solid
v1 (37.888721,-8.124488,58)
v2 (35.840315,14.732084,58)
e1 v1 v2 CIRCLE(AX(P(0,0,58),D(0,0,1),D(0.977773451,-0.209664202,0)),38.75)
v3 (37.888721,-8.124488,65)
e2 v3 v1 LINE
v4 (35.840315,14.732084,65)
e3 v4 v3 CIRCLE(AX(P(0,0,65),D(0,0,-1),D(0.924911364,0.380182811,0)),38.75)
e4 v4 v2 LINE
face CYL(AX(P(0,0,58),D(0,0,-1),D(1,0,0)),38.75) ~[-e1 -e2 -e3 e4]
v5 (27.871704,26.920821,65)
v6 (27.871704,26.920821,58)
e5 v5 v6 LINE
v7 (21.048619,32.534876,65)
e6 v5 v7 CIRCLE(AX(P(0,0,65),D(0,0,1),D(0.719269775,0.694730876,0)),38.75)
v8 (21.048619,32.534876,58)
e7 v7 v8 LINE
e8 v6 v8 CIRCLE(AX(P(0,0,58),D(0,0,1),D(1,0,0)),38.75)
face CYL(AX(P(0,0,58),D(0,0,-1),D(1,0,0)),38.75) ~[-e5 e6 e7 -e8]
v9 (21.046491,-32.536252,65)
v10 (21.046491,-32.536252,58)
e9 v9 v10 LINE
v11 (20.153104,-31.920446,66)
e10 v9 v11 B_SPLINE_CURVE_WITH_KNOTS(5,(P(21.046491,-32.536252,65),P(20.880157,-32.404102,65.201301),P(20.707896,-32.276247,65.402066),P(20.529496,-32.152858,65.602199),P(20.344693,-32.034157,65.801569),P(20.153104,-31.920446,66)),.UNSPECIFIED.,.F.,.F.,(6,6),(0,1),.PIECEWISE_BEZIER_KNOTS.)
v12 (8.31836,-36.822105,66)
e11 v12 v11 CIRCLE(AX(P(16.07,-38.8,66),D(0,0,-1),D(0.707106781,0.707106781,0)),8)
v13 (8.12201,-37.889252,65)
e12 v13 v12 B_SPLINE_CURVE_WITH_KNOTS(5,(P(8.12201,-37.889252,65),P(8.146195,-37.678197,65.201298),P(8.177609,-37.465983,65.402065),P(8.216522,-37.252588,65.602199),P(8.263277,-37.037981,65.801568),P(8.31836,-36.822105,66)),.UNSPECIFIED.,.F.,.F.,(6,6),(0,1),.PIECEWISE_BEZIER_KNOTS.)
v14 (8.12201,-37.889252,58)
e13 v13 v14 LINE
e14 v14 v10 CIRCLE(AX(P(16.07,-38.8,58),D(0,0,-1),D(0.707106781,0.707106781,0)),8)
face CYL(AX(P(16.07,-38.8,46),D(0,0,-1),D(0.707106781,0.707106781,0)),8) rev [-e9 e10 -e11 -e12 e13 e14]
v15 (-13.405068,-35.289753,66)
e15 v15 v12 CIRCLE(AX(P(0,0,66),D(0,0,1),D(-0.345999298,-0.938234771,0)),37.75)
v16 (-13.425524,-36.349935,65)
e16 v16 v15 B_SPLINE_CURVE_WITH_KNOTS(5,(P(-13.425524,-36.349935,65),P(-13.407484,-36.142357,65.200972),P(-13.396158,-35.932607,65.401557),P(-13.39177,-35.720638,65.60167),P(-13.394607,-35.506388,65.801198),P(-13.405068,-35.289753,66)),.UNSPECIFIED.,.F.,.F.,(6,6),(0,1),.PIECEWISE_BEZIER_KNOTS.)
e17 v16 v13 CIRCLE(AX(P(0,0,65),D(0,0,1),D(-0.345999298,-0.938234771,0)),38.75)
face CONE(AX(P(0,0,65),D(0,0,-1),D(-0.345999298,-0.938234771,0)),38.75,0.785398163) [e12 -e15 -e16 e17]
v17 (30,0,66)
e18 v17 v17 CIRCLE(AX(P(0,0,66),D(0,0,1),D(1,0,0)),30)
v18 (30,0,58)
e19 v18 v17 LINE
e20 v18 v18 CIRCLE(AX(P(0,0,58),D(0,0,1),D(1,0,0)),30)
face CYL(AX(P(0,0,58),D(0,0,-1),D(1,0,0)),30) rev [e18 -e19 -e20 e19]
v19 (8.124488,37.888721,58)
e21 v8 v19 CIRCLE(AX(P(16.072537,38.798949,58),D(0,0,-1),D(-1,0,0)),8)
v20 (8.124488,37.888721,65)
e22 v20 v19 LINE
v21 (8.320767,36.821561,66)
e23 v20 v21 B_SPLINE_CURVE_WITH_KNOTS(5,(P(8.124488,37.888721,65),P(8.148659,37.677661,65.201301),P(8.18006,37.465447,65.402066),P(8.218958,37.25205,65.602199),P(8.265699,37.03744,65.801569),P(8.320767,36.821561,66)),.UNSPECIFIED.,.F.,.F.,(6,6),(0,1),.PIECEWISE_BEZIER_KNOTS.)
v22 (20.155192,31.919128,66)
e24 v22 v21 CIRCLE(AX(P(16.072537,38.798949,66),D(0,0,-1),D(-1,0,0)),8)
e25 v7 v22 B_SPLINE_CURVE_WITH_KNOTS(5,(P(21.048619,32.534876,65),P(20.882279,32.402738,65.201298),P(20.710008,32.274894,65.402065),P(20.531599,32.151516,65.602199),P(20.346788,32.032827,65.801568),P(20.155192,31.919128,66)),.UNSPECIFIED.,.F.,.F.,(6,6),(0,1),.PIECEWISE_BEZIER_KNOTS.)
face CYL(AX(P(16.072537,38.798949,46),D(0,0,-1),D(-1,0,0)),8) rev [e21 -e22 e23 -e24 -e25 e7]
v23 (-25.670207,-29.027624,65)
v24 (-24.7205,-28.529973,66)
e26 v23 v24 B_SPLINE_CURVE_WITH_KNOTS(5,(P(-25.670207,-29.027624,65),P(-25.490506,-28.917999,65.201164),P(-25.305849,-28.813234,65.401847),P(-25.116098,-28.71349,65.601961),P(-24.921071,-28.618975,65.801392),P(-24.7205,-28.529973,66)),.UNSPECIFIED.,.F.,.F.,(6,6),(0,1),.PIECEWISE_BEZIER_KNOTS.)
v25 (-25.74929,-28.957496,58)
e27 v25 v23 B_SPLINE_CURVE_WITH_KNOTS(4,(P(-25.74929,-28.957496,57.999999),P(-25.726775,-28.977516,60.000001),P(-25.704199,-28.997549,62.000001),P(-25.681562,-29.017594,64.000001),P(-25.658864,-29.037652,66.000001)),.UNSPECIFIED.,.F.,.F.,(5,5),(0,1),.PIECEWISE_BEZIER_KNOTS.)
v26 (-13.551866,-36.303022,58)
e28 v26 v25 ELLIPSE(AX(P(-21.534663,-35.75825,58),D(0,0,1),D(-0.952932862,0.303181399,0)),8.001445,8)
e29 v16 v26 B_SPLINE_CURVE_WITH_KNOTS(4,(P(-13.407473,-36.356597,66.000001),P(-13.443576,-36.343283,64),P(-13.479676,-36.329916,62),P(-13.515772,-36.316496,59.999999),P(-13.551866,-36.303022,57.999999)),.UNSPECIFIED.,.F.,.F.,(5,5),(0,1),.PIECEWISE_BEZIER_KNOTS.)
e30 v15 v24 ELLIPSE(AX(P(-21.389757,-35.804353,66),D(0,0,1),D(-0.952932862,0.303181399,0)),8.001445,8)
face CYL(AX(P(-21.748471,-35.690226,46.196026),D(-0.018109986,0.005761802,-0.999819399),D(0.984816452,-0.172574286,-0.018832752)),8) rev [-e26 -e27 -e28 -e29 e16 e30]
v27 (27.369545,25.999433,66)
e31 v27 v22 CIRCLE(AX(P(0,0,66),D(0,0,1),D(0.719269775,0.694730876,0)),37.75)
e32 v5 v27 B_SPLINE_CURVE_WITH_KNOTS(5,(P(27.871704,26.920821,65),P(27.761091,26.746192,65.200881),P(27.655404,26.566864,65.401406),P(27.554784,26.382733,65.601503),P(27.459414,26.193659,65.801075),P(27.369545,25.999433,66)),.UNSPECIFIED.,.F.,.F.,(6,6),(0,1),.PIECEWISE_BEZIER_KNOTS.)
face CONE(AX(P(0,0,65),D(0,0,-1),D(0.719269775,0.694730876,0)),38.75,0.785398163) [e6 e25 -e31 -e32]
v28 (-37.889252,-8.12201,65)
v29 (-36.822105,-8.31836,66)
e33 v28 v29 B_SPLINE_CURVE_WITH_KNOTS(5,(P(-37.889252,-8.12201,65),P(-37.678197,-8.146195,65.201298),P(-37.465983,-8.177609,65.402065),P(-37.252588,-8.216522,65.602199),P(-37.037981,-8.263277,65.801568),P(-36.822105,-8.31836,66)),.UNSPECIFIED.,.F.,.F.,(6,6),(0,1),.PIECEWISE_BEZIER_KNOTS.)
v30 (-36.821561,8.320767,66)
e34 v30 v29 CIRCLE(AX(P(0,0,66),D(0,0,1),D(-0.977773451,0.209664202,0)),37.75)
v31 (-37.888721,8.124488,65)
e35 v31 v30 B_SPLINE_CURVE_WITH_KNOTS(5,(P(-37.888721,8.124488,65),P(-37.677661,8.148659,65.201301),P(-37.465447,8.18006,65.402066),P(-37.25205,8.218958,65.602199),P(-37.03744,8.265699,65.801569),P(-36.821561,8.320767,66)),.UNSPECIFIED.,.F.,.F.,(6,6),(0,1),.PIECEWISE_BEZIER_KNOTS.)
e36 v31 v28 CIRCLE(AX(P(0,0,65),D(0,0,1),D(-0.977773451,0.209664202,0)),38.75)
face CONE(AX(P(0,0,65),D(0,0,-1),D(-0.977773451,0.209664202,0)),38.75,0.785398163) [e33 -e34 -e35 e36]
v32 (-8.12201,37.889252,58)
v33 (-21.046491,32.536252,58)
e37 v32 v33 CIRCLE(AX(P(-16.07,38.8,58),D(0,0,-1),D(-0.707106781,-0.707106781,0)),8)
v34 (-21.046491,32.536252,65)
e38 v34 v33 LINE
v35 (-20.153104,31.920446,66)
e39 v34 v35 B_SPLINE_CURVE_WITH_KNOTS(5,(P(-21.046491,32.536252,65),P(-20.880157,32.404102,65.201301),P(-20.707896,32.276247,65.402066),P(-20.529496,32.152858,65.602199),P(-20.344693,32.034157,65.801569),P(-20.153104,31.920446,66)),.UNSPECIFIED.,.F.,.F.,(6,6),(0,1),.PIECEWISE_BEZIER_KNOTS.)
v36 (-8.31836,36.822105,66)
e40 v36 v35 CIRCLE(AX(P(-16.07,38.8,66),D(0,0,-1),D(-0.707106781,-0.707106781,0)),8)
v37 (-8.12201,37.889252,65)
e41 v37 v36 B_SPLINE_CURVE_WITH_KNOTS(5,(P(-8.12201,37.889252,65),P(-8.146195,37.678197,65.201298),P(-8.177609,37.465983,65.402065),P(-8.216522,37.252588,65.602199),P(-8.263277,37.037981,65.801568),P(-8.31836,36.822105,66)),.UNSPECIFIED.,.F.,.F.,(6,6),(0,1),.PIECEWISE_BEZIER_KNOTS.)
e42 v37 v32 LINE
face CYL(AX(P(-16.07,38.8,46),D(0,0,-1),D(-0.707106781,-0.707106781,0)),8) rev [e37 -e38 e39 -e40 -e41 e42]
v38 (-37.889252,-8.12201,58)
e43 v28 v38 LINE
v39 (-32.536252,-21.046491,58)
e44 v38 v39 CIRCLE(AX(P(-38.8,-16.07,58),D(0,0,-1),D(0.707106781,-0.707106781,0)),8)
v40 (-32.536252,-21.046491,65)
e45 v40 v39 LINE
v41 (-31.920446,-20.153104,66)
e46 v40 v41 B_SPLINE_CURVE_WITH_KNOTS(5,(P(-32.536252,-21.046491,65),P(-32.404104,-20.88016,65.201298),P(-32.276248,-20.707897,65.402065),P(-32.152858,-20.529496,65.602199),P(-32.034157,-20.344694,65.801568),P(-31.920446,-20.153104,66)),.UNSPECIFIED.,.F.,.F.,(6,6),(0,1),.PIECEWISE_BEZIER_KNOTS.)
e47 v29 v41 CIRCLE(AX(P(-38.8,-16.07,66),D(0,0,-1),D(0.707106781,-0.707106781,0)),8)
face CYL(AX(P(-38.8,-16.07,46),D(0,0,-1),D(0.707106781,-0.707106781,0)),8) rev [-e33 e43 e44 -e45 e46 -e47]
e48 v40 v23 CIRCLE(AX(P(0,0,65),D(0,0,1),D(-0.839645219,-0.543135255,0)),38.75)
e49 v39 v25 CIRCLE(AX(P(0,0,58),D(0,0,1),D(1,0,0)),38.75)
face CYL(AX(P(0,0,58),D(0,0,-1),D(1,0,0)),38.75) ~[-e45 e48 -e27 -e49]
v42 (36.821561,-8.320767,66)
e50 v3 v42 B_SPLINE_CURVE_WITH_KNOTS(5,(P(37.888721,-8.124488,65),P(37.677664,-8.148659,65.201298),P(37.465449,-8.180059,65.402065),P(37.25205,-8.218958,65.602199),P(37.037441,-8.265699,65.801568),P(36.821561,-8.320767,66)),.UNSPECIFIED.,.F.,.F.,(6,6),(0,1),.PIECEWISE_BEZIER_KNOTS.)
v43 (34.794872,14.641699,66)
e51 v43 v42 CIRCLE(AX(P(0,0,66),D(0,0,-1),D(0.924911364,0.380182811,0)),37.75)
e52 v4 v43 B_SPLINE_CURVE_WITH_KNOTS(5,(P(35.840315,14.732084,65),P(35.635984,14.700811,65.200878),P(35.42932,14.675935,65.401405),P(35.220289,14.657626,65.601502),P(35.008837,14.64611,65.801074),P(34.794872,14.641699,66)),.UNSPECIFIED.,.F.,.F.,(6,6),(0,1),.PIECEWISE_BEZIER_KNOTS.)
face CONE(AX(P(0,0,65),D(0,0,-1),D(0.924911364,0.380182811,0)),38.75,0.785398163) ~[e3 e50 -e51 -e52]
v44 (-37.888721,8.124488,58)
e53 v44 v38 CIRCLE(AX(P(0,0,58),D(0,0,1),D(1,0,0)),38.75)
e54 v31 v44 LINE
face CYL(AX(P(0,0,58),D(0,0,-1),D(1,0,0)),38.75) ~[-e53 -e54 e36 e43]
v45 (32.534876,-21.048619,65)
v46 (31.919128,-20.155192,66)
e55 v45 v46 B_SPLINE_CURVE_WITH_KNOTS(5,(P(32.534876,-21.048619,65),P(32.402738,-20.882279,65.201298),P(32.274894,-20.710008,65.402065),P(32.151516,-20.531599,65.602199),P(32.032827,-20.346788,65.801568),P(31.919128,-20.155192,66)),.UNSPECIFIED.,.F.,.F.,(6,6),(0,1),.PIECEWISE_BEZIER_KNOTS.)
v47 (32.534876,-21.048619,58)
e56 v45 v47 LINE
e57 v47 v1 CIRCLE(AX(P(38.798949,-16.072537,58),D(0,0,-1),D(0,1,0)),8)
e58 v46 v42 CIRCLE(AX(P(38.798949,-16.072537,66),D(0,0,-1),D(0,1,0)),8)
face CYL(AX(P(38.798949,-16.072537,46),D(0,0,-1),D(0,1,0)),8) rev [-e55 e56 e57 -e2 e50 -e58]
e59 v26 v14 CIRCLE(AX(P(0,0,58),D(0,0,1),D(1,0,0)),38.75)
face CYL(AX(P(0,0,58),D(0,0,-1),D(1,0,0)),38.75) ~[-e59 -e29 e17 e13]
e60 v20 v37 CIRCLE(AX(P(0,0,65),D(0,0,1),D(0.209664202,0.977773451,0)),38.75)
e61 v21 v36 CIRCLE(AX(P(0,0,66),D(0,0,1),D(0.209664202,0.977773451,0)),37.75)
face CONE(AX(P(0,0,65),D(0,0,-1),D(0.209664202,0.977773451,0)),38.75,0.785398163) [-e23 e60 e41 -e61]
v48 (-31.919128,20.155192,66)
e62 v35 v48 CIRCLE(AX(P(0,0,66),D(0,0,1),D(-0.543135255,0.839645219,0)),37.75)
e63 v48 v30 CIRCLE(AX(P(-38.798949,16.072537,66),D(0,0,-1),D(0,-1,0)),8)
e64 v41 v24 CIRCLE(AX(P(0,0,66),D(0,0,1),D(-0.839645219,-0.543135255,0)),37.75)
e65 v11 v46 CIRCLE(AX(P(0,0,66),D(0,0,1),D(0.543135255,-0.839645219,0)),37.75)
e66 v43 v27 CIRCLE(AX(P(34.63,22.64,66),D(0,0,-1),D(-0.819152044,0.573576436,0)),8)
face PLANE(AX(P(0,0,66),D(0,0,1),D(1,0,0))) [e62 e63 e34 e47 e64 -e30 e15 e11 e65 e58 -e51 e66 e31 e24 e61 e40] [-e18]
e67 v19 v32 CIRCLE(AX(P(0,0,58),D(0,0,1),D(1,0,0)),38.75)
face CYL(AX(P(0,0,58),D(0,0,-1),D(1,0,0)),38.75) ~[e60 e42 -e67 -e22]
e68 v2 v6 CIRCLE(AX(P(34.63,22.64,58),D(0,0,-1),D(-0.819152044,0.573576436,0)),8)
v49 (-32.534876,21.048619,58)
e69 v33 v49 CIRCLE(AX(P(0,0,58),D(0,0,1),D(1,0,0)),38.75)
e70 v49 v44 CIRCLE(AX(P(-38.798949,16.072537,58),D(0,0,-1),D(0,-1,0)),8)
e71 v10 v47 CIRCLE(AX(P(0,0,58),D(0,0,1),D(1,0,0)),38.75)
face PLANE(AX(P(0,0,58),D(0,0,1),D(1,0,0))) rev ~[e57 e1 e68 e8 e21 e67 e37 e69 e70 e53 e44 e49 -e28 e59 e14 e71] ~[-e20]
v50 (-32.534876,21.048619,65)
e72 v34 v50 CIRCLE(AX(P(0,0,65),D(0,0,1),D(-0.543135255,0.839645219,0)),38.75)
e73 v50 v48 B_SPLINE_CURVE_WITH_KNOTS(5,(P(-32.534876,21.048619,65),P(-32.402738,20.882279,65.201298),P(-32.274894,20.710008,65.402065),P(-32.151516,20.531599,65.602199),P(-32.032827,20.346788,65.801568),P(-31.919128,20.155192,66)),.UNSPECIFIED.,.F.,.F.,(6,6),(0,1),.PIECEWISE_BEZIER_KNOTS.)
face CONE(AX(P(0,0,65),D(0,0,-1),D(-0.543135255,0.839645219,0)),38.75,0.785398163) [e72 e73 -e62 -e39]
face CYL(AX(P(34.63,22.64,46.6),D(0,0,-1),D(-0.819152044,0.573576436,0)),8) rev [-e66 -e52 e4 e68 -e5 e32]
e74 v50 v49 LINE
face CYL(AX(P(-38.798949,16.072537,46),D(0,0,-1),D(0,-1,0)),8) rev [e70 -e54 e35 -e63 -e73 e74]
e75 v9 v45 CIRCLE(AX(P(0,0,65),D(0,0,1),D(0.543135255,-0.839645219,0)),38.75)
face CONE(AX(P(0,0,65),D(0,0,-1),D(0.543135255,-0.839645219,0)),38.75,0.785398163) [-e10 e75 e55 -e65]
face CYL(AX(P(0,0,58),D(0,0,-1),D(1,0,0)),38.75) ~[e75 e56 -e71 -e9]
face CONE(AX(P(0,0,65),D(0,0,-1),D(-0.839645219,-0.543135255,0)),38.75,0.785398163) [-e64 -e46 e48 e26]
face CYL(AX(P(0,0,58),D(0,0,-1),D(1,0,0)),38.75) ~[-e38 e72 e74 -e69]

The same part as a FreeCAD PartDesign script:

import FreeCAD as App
import Part
import Sketcher
from FreeCAD import Vector
Q = App.Units.Quantity


def edges_at(feature, points):
    """Names of the edges that pass closest to the given points."""
    edges = feature.Shape.Edges
    near = lambda p: min(range(len(edges)), key=lambda i: edges[i].distToShape(Part.Vertex(*p))[0])
    return sorted({f"Edge{near(p) + 1}" for p in points})

doc = App.newDocument("Part")
body = doc.addObject("PartDesign::Body", "Body")

sketch1 = body.newObject("Sketcher::SketchObject", "Sketch")
sketch1.AttachmentSupport = (doc.getObject("XY_Plane"), [""])
sketch1.MapMode = "FlatFace"
sketch1.AttachmentOffset = App.Placement(Vector(0, 0, 43), App.Rotation())
sketch1.addGeometry(Part.Circle(Vector(-39, 16, 0), Vector(0, 0, 1), 8), False)
sketch1.addConstraint([
    Sketcher.Constraint("Diameter", 0, Q("16 mm")),
    Sketcher.Constraint("DistanceX", 0, 3, -1, 1, Q("38.798949 mm")),
    Sketcher.Constraint("DistanceY", -1, 1, 0, 3, Q("16.072537 mm")),
])
pad1 = body.newObject("PartDesign::Pad", "Pad")
pad1.Profile = sketch1
pad1.Length = 25
body2 = doc.addObject("PartDesign::Body", "Body001")

sketch2 = body2.newObject("Sketcher::SketchObject", "Sketch001")
sketch2.AttachmentSupport = (doc.getObject("XY_Plane001"), [""])
sketch2.MapMode = "FlatFace"
sketch2.addGeometry(Part.Circle(Vector(0, 0, 0), Vector(0, 0, 1), 8), False)
sketch2.addConstraint([
    Sketcher.Constraint("Coincident", 0, 3, -1, 1),
    Sketcher.Constraint("Diameter", 0, Q("16 mm")),
])
pad2 = body2.newObject("PartDesign::Pad", "Pad001")
pad2.Profile = sketch2
pad2.Length = 25
body3 = doc.addObject("PartDesign::Body", "Body002")
doc.recompute()

body2.Placement = App.Placement(Vector(-16.07, 38.8, 43), App.Rotation(Vector(0, 0, 1), 225))
boolean = body3.newObject("PartDesign::Boolean", "Boolean")
boolean.Type = "Fuse"
boolean.addObjects([body2])
body4 = doc.addObject("PartDesign::Body", "Body003")

sketch3 = body4.newObject("Sketcher::SketchObject", "Sketch002")
sketch3.AttachmentSupport = (doc.getObject("XY_Plane003"), [""])
sketch3.MapMode = "FlatFace"
sketch3.AttachmentOffset = App.Placement(Vector(0, 0, 43), App.Rotation())
sketch3.addGeometry(Part.Circle(Vector(16, 39, 0), Vector(0, 0, 1), 8), False)
sketch3.addConstraint([
    Sketcher.Constraint("Diameter", 0, Q("16 mm")),
    Sketcher.Constraint("DistanceY", -1, 1, 0, 3, Q("38.798949 mm")),
    Sketcher.Constraint("DistanceX", -1, 1, 0, 3, Q("16.072537 mm")),
])
pad3 = body4.newObject("PartDesign::Pad", "Pad002")
pad3.Profile = sketch3
pad3.Length = 25
body5 = doc.addObject("PartDesign::Body", "Body004")

sketch4 = body5.newObject("Sketcher::SketchObject", "Sketch003")
sketch4.AttachmentSupport = (doc.getObject("XY_Plane004"), [""])
sketch4.MapMode = "FlatFace"
sketch4.addGeometry(Part.Circle(Vector(0, 0, 0), Vector(0, 0, 1), 8), False)
sketch4.addConstraint([
    Sketcher.Constraint("Coincident", 0, 3, -1, 1),
    Sketcher.Constraint("Diameter", 0, Q("16 mm")),
])
pad4 = body5.newObject("PartDesign::Pad", "Pad003")
pad4.Profile = sketch4
pad4.Length = 25
body6 = doc.addObject("PartDesign::Body", "Body005")
doc.recompute()

body5.Placement = App.Placement(Vector(34.63, 22.64, 43.6), App.Rotation(Vector(0, 0, 1), 145))
boolean2 = body6.newObject("PartDesign::Boolean", "Boolean001")
boolean2.Type = "Fuse"
boolean2.addObjects([body5])
body7 = doc.addObject("PartDesign::Body", "Body006")

sketch5 = body7.newObject("Sketcher::SketchObject", "Sketch004")
sketch5.AttachmentSupport = (doc.getObject("XY_Plane006"), [""])
sketch5.MapMode = "FlatFace"
sketch5.AttachmentOffset = App.Placement(Vector(0, 0, 43), App.Rotation())
sketch5.addGeometry(Part.Circle(Vector(39, -16, 0), Vector(0, 0, 1), 8), False)
sketch5.addConstraint([
    Sketcher.Constraint("Diameter", 0, Q("16 mm")),
    Sketcher.Constraint("DistanceX", -1, 1, 0, 3, Q("38.798949 mm")),
    Sketcher.Constraint("DistanceY", 0, 3, -1, 1, Q("16.072537 mm")),
])
pad5 = body7.newObject("PartDesign::Pad", "Pad004")
pad5.Profile = sketch5
pad5.Length = 25
body8 = doc.addObject("PartDesign::Body", "Body007")

sketch6 = body8.newObject("Sketcher::SketchObject", "Sketch005")
sketch6.AttachmentSupport = (doc.getObject("XY_Plane007"), [""])
sketch6.MapMode = "FlatFace"
sketch6.addGeometry(Part.Circle(Vector(0, 0, 0), Vector(0, 0, 1), 8), False)
sketch6.addConstraint([
    Sketcher.Constraint("Coincident", 0, 3, -1, 1),
    Sketcher.Constraint("Diameter", 0, Q("16 mm")),
])
pad6 = body8.newObject("PartDesign::Pad", "Pad005")
pad6.Profile = sketch6
pad6.Length = 25
body9 = doc.addObject("PartDesign::Body", "Body008")
doc.recompute()

body8.Placement = App.Placement(Vector(16.07, -38.8, 43), App.Rotation(Vector(0, 0, 1), 45))
boolean3 = body9.newObject("PartDesign::Boolean", "Boolean002")
boolean3.Type = "Fuse"
boolean3.addObjects([body8])
body10 = doc.addObject("PartDesign::Body", "Body009")

sketch7 = body10.newObject("Sketcher::SketchObject", "Sketch006")
sketch7.AttachmentSupport = (doc.getObject("XY_Plane009"), [""])
sketch7.MapMode = "FlatFace"
sketch7.addGeometry(Part.Circle(Vector(0, 0, 0), Vector(0, 0, 1), 8), False)
sketch7.addConstraint([
    Sketcher.Constraint("Coincident", 0, 3, -1, 1),
    Sketcher.Constraint("Diameter", 0, Q("16 mm")),
])
pad7 = body10.newObject("PartDesign::Pad", "Pad006")
pad7.Profile = sketch7
pad7.Length = 25
body11 = doc.addObject("PartDesign::Body", "Body010")
doc.recompute()

body10.Placement = App.Placement(Vector(0, 0, 0), App.Rotation(Vector(1, 0, 0), 0.146073))
boolean4 = body11.newObject("PartDesign::Boolean", "Boolean003")
boolean4.Type = "Fuse"
boolean4.addObjects([body10])
body12 = doc.addObject("PartDesign::Body", "Body011")
doc.recompute()

body11.Placement = App.Placement(Vector(0, 0, 0), App.Rotation(Vector(0, 1, 0), 1.079101))
boolean5 = body12.newObject("PartDesign::Boolean", "Boolean004")
boolean5.Type = "Fuse"
boolean5.addObjects([body11])
body13 = doc.addObject("PartDesign::Body", "Body012")
doc.recompute()

body12.Placement = App.Placement(Vector(-21.748471, -35.690226, 43.196026), App.Rotation(Vector(0, 0, 1), 350.060692))
boolean6 = body13.newObject("PartDesign::Boolean", "Boolean005")
boolean6.Type = "Fuse"
boolean6.addObjects([body12])
body14 = doc.addObject("PartDesign::Body", "Body013")

sketch8 = body14.newObject("Sketcher::SketchObject", "Sketch007")
sketch8.AttachmentSupport = (doc.getObject("XY_Plane013"), [""])
sketch8.MapMode = "FlatFace"
sketch8.addGeometry(Part.Circle(Vector(0, 0, 0), Vector(0, 0, 1), 8), False)
sketch8.addConstraint([
    Sketcher.Constraint("Coincident", 0, 3, -1, 1),
    Sketcher.Constraint("Diameter", 0, Q("16 mm")),
])
pad8 = body14.newObject("PartDesign::Pad", "Pad007")
pad8.Profile = sketch8
pad8.Length = 25
body15 = doc.addObject("PartDesign::Body", "Body014")
body15.AllowCompound = True
doc.recompute()

body14.Placement = App.Placement(Vector(-38.8, -16.07, 43), App.Rotation(Vector(0, 0, -1), 45))
boolean7 = body15.newObject("PartDesign::Boolean", "Boolean006")
boolean7.Type = "Fuse"
boolean7.addObjects([body14])
doc.recompute()

boolean8 = body15.newObject("PartDesign::Boolean", "Boolean007")
boolean8.Type = "Fuse"
boolean8.addObjects([body])
doc.recompute()

boolean9 = body15.newObject("PartDesign::Boolean", "Boolean008")
boolean9.Type = "Fuse"
boolean9.addObjects([body3])
doc.recompute()

boolean10 = body15.newObject("PartDesign::Boolean", "Boolean009")
boolean10.Type = "Fuse"
boolean10.addObjects([body4])
doc.recompute()

boolean11 = body15.newObject("PartDesign::Boolean", "Boolean010")
boolean11.Type = "Fuse"
boolean11.addObjects([body6])
doc.recompute()

boolean12 = body15.newObject("PartDesign::Boolean", "Boolean011")
boolean12.Type = "Fuse"
boolean12.addObjects([body7])
doc.recompute()

boolean13 = body15.newObject("PartDesign::Boolean", "Boolean012")
boolean13.Type = "Fuse"
boolean13.addObjects([body9])
doc.recompute()

boolean14 = body15.newObject("PartDesign::Boolean", "Boolean013")
boolean14.Type = "Fuse"
boolean14.addObjects([body13])
body16 = doc.addObject("PartDesign::Body", "Body015")
body16.AllowCompound = True
doc.recompute()

body15.Placement = App.Placement(Vector(0, 0, 3), App.Rotation(Vector(0, 0, 1), 0))
boolean15 = body16.newObject("PartDesign::Boolean", "Boolean014")
boolean15.Type = "Fuse"
boolean15.addObjects([body15])
body17 = doc.addObject("PartDesign::Body", "Body016")

sketch9 = body17.newObject("Sketcher::SketchObject", "Sketch008")
sketch9.AttachmentSupport = (doc.getObject("XY_Plane016"), [""])
sketch9.MapMode = "FlatFace"
sketch9.AttachmentOffset = App.Placement(Vector(0, 0, 58), App.Rotation())
sketch9.addGeometry([
    Part.Circle(Vector(0, 0, 0), Vector(0, 0, 1), 39),
    Part.Circle(Vector(0, 0, 0), Vector(0, 0, 1), 30),
], False)
sketch9.addConstraint([
    Sketcher.Constraint("Coincident", 0, 3, -1, 1),
    Sketcher.Constraint("Coincident", 1, 3, -1, 1),
    Sketcher.Constraint("Diameter", 1, Q("60 mm")),
    Sketcher.Constraint("Diameter", 0, Q("77.5 mm")),
])
pad9 = body17.newObject("PartDesign::Pad", "Pad008")
pad9.Profile = sketch9
pad9.Length = 8
doc.recompute()

boolean16 = body17.newObject("PartDesign::Boolean", "Boolean015")
boolean16.Type = "Cut"
boolean16.addObjects([body16])
doc.recompute()

chamfer = body17.newObject("PartDesign::Chamfer", "Chamfer")
chamfer.Base = (boolean16, edges_at(boolean16, [
    (38.595, 3.459, 66),
    (38.595, 3.459, 66),
    (27.399, -27.401, 66),
    (-2.752, -38.652, 66),
    (-29.371, -25.277, 66),
    (-38.75, 0.001, 66),
    (-27.399, 27.401, 66),
    (0.001, 38.75, 66),
    (24.621, 29.923, 66),
]))
chamfer.Size = 1

doc.recompute()
